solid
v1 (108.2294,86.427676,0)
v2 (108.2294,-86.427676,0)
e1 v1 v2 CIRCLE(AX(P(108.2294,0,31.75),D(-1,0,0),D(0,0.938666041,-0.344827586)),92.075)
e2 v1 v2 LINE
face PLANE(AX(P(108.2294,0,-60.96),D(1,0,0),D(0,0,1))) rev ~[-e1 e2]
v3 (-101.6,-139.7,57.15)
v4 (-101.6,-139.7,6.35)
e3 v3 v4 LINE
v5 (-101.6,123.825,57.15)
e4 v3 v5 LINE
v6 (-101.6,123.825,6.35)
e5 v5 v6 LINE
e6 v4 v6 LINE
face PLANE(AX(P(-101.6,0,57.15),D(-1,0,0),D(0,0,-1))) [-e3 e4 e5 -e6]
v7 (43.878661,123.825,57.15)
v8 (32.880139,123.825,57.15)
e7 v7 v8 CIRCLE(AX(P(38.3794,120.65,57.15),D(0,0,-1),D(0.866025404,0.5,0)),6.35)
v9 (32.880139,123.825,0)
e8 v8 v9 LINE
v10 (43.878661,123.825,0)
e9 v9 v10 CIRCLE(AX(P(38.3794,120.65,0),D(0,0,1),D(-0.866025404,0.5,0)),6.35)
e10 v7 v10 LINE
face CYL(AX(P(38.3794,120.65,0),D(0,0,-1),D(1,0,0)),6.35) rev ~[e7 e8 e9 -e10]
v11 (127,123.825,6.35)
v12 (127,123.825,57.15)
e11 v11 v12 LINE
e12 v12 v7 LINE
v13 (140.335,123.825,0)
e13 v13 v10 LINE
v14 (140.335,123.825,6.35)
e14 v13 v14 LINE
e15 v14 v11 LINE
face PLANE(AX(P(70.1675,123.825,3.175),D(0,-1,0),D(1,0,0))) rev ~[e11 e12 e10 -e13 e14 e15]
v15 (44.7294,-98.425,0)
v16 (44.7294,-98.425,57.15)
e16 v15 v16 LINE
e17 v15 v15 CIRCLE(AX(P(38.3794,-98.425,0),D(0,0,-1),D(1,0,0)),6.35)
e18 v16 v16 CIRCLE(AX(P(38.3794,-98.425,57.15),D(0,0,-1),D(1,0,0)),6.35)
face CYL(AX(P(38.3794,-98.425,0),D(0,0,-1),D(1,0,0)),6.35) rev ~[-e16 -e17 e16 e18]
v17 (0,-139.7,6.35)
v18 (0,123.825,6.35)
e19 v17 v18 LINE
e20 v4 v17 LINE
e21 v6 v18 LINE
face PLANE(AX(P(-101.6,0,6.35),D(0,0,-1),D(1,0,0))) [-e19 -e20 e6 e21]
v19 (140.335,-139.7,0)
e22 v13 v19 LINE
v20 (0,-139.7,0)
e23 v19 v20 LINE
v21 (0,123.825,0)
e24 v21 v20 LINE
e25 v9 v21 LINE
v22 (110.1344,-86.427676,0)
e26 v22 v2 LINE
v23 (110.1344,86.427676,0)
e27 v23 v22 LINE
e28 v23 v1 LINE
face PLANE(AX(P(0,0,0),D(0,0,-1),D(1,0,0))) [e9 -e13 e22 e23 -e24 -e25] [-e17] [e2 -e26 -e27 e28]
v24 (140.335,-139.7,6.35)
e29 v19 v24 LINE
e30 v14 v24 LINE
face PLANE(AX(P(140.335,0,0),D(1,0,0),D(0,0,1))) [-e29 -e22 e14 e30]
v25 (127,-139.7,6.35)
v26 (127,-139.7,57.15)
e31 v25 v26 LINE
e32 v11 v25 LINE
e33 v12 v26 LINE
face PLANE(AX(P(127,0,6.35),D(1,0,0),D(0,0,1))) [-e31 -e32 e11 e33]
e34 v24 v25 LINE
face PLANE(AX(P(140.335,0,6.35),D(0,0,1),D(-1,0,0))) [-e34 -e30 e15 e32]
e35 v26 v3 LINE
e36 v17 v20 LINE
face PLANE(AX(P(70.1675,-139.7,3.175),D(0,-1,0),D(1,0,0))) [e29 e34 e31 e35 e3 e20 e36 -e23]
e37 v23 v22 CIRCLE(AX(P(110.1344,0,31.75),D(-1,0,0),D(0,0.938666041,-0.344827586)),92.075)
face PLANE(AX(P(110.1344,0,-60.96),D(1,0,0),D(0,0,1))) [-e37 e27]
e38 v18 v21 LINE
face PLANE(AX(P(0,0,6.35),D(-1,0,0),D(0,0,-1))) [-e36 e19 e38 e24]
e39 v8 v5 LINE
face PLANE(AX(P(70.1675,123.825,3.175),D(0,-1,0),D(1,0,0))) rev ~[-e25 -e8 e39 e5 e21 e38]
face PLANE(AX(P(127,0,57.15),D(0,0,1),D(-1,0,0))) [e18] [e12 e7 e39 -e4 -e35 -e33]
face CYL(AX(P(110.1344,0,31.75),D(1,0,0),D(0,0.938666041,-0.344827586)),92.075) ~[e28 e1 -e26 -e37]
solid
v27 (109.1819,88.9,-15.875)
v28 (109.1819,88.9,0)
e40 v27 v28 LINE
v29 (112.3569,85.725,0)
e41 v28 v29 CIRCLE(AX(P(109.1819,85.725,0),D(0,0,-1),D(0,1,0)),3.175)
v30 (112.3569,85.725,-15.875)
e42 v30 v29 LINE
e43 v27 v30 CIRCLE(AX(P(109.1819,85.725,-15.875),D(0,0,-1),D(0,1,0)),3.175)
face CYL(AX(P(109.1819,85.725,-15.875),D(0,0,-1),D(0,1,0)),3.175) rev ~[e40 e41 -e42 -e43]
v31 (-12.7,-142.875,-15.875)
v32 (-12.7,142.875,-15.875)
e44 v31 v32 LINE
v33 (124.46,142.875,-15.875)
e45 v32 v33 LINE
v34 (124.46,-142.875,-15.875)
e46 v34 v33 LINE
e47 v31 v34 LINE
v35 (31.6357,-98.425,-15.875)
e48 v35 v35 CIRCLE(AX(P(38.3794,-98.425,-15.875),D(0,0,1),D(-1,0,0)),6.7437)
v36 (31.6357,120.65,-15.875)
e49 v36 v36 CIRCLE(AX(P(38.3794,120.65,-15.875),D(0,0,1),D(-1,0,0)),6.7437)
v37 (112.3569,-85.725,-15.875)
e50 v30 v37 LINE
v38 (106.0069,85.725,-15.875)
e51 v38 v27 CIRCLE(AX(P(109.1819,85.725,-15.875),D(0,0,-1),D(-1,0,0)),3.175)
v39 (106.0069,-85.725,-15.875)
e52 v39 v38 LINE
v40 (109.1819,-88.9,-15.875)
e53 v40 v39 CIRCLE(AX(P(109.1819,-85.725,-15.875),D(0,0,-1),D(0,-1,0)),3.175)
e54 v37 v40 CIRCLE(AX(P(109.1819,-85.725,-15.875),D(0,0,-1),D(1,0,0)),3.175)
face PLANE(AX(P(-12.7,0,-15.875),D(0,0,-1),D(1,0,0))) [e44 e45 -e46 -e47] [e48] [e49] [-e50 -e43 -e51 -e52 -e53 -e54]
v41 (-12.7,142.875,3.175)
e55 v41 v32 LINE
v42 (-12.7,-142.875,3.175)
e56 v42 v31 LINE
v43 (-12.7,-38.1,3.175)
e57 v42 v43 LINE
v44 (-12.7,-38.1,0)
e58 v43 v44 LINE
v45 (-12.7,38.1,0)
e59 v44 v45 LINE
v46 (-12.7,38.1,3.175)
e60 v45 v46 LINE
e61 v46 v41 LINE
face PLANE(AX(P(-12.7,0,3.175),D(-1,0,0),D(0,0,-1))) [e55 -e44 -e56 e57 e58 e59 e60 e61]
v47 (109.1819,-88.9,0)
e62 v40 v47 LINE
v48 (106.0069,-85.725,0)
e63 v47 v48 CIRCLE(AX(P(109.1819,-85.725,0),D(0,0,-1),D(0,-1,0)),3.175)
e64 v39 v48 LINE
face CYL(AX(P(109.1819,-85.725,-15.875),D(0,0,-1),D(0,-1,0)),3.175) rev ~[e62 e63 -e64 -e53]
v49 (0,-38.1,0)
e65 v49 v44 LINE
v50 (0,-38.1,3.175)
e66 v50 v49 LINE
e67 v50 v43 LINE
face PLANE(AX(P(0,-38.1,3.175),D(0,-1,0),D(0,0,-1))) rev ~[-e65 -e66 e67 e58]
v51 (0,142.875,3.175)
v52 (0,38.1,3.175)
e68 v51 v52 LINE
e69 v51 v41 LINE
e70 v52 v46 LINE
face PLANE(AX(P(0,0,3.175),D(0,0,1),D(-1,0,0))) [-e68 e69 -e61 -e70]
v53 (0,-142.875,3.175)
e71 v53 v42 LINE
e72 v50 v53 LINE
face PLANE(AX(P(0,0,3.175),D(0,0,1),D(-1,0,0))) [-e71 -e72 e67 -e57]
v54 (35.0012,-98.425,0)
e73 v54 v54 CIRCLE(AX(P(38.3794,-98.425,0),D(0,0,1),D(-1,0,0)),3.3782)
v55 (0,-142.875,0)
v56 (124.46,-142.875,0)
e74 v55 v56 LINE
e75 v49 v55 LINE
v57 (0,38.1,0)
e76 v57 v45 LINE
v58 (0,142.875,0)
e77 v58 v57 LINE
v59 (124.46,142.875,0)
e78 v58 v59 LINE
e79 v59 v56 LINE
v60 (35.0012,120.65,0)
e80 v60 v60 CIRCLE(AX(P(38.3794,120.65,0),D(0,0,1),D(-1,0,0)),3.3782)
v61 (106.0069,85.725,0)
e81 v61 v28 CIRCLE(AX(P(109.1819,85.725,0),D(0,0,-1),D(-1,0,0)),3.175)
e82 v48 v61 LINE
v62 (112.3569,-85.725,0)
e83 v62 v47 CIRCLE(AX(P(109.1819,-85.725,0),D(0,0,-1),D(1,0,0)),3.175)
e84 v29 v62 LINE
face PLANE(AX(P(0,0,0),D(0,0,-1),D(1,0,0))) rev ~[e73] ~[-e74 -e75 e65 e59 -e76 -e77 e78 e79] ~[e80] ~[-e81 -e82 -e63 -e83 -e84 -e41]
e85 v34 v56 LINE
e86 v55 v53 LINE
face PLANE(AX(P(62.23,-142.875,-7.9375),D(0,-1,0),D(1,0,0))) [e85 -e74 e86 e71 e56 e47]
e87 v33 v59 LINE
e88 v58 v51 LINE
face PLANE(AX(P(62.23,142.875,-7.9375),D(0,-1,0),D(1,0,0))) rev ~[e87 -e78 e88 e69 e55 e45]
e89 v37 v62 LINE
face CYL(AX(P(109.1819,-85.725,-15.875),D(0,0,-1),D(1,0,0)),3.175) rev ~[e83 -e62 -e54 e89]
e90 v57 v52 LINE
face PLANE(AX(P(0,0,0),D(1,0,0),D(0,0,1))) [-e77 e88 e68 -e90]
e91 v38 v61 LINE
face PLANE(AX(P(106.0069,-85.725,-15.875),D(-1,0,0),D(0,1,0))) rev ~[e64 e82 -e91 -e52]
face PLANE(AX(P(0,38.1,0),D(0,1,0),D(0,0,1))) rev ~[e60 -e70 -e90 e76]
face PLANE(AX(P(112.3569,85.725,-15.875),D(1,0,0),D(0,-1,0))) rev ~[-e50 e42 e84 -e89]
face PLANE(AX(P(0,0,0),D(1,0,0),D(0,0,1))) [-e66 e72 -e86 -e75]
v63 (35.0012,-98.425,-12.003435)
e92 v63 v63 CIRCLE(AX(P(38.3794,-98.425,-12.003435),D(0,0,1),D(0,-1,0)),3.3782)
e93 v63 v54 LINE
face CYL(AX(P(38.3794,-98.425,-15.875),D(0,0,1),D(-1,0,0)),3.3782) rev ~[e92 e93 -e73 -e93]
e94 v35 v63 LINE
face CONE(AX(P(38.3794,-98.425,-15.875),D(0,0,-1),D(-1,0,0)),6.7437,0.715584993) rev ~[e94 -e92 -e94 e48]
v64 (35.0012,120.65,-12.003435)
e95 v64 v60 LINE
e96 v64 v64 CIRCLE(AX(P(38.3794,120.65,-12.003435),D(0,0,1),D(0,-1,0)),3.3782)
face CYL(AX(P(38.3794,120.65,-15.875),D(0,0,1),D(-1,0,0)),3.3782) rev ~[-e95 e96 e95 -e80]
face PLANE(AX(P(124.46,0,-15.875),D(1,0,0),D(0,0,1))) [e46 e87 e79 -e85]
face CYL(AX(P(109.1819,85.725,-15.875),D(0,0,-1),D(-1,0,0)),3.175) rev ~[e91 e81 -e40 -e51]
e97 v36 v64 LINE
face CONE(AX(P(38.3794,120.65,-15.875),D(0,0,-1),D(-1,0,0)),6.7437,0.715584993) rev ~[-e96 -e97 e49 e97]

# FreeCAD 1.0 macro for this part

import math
import FreeCAD as App
import Part
import Sketcher

V = App.Vector
Q = App.Units.Quantity


def add_polygon(sketch, points):
    """Adds a closed chain of lines whose ends are joined by coincident constraints."""
    first, n = sketch.GeometryCount, len(points)
    for a, b in zip(points, points[1:] + points[:1]):
        sketch.addGeometry(Part.LineSegment(App.Vector(*a, 0), App.Vector(*b, 0)), False)
    for i in range(n):
        sketch.addConstraint(Sketcher.Constraint("Coincident", first + i, 2, first + (i + 1) % n, 1))

doc = App.newDocument("Part")
body = doc.addObject("PartDesign::Body", "Body")

# Sketch on XZ plane
sketch1 = doc.addObject("Sketcher::SketchObject", "Sketch")
body.addObject(sketch1)
sketch1.AttachmentSupport = (doc.XZ_Plane, [""])
sketch1.MapMode = "FlatFace"
add_polygon(sketch1, [(0, 6.3), (0, 0), (108.2, 0), (108.2, -61), (110.1, -61), (110.1, 0), (140.3, 0), (140.3, 6.3), (127, 6.3), (127, 57.1), (-101.6, 57.1), (-101.6, 6.3)])  # lines 0-11
sketch1.addConstraint(Sketcher.Constraint("Vertical", 0))
sketch1.addConstraint(Sketcher.Constraint("Horizontal", 1))
sketch1.addConstraint(Sketcher.Constraint("Vertical", 2))
sketch1.addConstraint(Sketcher.Constraint("Horizontal", 3))
sketch1.addConstraint(Sketcher.Constraint("Vertical", 4))
sketch1.addConstraint(Sketcher.Constraint("Horizontal", 5))
sketch1.addConstraint(Sketcher.Constraint("Vertical", 6))
sketch1.addConstraint(Sketcher.Constraint("Horizontal", 7))
sketch1.addConstraint(Sketcher.Constraint("Vertical", 8))
sketch1.addConstraint(Sketcher.Constraint("Horizontal", 9))
sketch1.addConstraint(Sketcher.Constraint("Vertical", 10))
sketch1.addConstraint(Sketcher.Constraint("Horizontal", 11))
sketch1.addConstraint(Sketcher.Constraint("Coincident", 0, 2, -1, 1))
sketch1.addConstraint(Sketcher.Constraint("PointOnObject", 4, 2, -1))
sketch1.addConstraint(Sketcher.Constraint("Horizontal", 7, 2, 10, 2))
sketch1.addConstraint(Sketcher.Constraint("DistanceX", 9, 2, 9, 1, Q("9 in")))
sketch1.addConstraint(Sketcher.Constraint("DistanceX", 11, 1, 11, 2, Q("4 in")))
sketch1.addConstraint(Sketcher.Constraint("DistanceY", 8, 1, 8, 2, Q("2 in")))
sketch1.addConstraint(Sketcher.Constraint("DistanceY", 2, 2, 2, 1, Q("2.4 in")))
sketch1.addConstraint(Sketcher.Constraint("DistanceY", 0, 2, 0, 1, Q("0.25 in")))
sketch1.addConstraint(Sketcher.Constraint("DistanceX", 1, 1, 1, 2, Q("4.261 in")))
sketch1.addConstraint(Sketcher.Constraint("DistanceX", 3, 1, 3, 2, Q("0.075 in")))
sketch1.addConstraint(Sketcher.Constraint("DistanceX", 5, 1, 5, 2, Q("1.189 in")))
pad1 = doc.addObject("PartDesign::Pad", "Pad")
body.addObject(pad1)
pad1.Profile = sketch1
pad1.Type = "TwoLengths"
pad1.Length = Q("5.5 in")
pad1.Length2 = Q("4.875 in")

# Sketch on YZ plane
sketch2 = doc.addObject("Sketcher::SketchObject", "Sketch001")
body.addObject(sketch2)
sketch2.AttachmentSupport = (doc.YZ_Plane, [""])
sketch2.MapMode = "FlatFace"
sketch2.AttachmentOffset = App.Placement(V(0, 0, 4.336 * 25.4), App.Rotation())
sketch2.addGeometry(Part.LineSegment(V(-86, 0, 0), V(-140, 0, 0)), False)
sketch2.addGeometry(Part.LineSegment(V(-140, 0, 0), V(-140, -89, 0)), False)
sketch2.addGeometry(Part.LineSegment(V(-140, -89, 0), V(152, -89, 0)), False)
sketch2.addGeometry(Part.LineSegment(V(152, -89, 0), V(152, 0, 0)), False)
sketch2.addGeometry(Part.LineSegment(V(152, 0, 0), V(86, 0, 0)), False)
sketch2.addGeometry(Part.ArcOfCircle(Part.Circle(V(0, 32, 0), V(0, 0, 1), 92), math.radians(-160), math.radians(-20)), False)
sketch2.addConstraint(Sketcher.Constraint("Coincident", 0, 2, 1, 1))
sketch2.addConstraint(Sketcher.Constraint("Coincident", 1, 2, 2, 1))
sketch2.addConstraint(Sketcher.Constraint("Coincident", 2, 2, 3, 1))
sketch2.addConstraint(Sketcher.Constraint("Coincident", 3, 2, 4, 1))
sketch2.addConstraint(Sketcher.Constraint("Coincident", 4, 2, 5, 2))
sketch2.addConstraint(Sketcher.Constraint("Coincident", 5, 1, 0, 1))
sketch2.addConstraint(Sketcher.Constraint("Horizontal", 0))
sketch2.addConstraint(Sketcher.Constraint("Vertical", 1))
sketch2.addConstraint(Sketcher.Constraint("Horizontal", 2))
sketch2.addConstraint(Sketcher.Constraint("Vertical", 3))
sketch2.addConstraint(Sketcher.Constraint("Horizontal", 4))
sketch2.addConstraint(Sketcher.Constraint("Symmetric", 4, 2, 5, 1, -1, 1))
sketch2.addConstraint(Sketcher.Constraint("PointOnObject", 5, 3, -2))
sketch2.addConstraint(Sketcher.Constraint("DistanceX", 2, 1, 2, 2, Q("11.5 in")))
sketch2.addConstraint(Sketcher.Constraint("DistanceY", 1, 2, 1, 1, Q("3.5 in")))
sketch2.addConstraint(Sketcher.Constraint("DistanceX", -1, 1, 2, 2, Q("6 in")))
sketch2.addConstraint(Sketcher.Constraint("Radius", 5, Q("3.625 in")))
sketch2.addConstraint(Sketcher.Constraint("DistanceY", -1, 1, 5, 3, Q("1.25 in")))
pocket1 = doc.addObject("PartDesign::Pocket", "Pocket")
body.addObject(pocket1)
pocket1.Profile = sketch2
pocket1.Type = "ThroughAll"

# Sketch on XY plane
sketch3 = doc.addObject("Sketcher::SketchObject", "Sketch002")
body.addObject(sketch3)
sketch3.AttachmentSupport = (doc.XY_Plane, [""])
sketch3.MapMode = "FlatFace"
sketch3.addGeometry(Part.Circle(V(38, 121, 0), V(0, 0, 1), 6), False)
sketch3.addGeometry(Part.Circle(V(38, -98, 0), V(0, 0, 1), 6), False)
sketch3.addConstraint(Sketcher.Constraint("Equal", 0, 1))
sketch3.addConstraint(Sketcher.Constraint("Vertical", 0, 3, 1, 3))
sketch3.addConstraint(Sketcher.Constraint("Diameter", 0, Q("0.5 in")))
sketch3.addConstraint(Sketcher.Constraint("DistanceY", -1, 1, 0, 3, Q("4.75 in")))
sketch3.addConstraint(Sketcher.Constraint("DistanceX", -1, 1, 0, 3, Q("1.511 in")))
sketch3.addConstraint(Sketcher.Constraint("DistanceY", 1, 3, -1, 1, Q("3.875 in")))
pocket2 = doc.addObject("PartDesign::Pocket", "Pocket001")
body.addObject(pocket2)
pocket2.Profile = sketch3
pocket2.Type = "ThroughAll"
pocket2.Reversed = True
body2 = doc.addObject("PartDesign::Body", "Body001")

# Sketch on XZ plane
sketch4 = doc.addObject("Sketcher::SketchObject", "Sketch003")
body2.addObject(sketch4)
sketch4.AttachmentSupport = (doc.getObject("XZ_Plane001"), [""])
sketch4.MapMode = "FlatFace"
add_polygon(sketch4, [(124.5, -15.9), (124.5, 0), (0, 0), (0, 3.2), (-12.7, 3.2), (-12.7, -15.9)])  # lines 0-5
sketch4.addConstraint(Sketcher.Constraint("Vertical", 0))
sketch4.addConstraint(Sketcher.Constraint("Horizontal", 1))
sketch4.addConstraint(Sketcher.Constraint("Vertical", 2))
sketch4.addConstraint(Sketcher.Constraint("Horizontal", 3))
sketch4.addConstraint(Sketcher.Constraint("Vertical", 4))
sketch4.addConstraint(Sketcher.Constraint("Horizontal", 5))
sketch4.addConstraint(Sketcher.Constraint("Coincident", 1, 2, -1, 1))
sketch4.addConstraint(Sketcher.Constraint("DistanceX", 1, 2, 1, 1, Q("4.9 in")))
sketch4.addConstraint(Sketcher.Constraint("DistanceX", 3, 2, 3, 1, Q("0.5 in")))
sketch4.addConstraint(Sketcher.Constraint("DistanceY", 4, 2, 4, 1, Q("0.75 in")))
sketch4.addConstraint(Sketcher.Constraint("DistanceY", 0, 1, 0, 2, Q("0.625 in")))
pad2 = doc.addObject("PartDesign::Pad", "Pad001")
body2.addObject(pad2)
pad2.Profile = sketch4
pad2.Type = "TwoLengths"
pad2.Length = Q("5.625 in")
pad2.Length2 = Q("5.625 in")

# Sketch on XY plane
sketch5 = doc.addObject("Sketcher::SketchObject", "Sketch004")
body2.addObject(sketch5)
sketch5.AttachmentSupport = (doc.getObject("XY_Plane001"), [""])
sketch5.MapMode = "FlatFace"
sketch5.AttachmentOffset = App.Placement(V(0, 0, -0.625 * 25.4), App.Rotation())
sketch5.addGeometry(Part.Circle(V(38.4, 120.7, 0), V(0, 0, 1), 3.4), False)
sketch5.addGeometry(Part.Circle(V(38.4, -98.4, 0), V(0, 0, 1), 3.4), False)
sketch5.addConstraint(Sketcher.Constraint("Equal", 0, 1))
sketch5.addConstraint(Sketcher.Constraint("Vertical", 0, 3, 1, 3))
sketch5.addConstraint(Sketcher.Constraint("Diameter", 0, Q("0.266 in")))
sketch5.addConstraint(Sketcher.Constraint("DistanceY", -1, 1, 0, 3, Q("4.75 in")))
sketch5.addConstraint(Sketcher.Constraint("DistanceX", -1, 1, 0, 3, Q("1.511 in")))
sketch5.addConstraint(Sketcher.Constraint("DistanceY", 1, 3, -1, 1, Q("3.875 in")))
doc.recompute()
hole = doc.addObject("PartDesign::Hole", "Hole")
body2.addObject(hole)
hole.Profile = sketch5
hole.ThreadType = "None"
hole.Diameter = Q("0.266 in")
hole.DepthType = "ThroughAll"
hole.HoleCutType = "Countersink"
hole.HoleCutDiameter = Q("0.531 in")
hole.HoleCutCountersinkAngle = 82
hole.Reversed = True

# Sketch on XY plane
sketch6 = doc.addObject("Sketcher::SketchObject", "Sketch005")
body2.addObject(sketch6)
sketch6.AttachmentSupport = (doc.getObject("XY_Plane001"), [""])
sketch6.MapMode = "FlatFace"
sketch6.AttachmentOffset = App.Placement(V(0, 0, -0.625 * 25.4), App.Rotation())
sketch6.addGeometry(Part.LineSegment(V(112.4, 85.7, 0), V(112.4, -85.7, 0)), False)
sketch6.addGeometry(Part.ArcOfCircle(Part.Circle(V(109.2, -85.7, 0), V(0, 0, 1), 3.2), math.radians(-90), math.radians(0)), False)
sketch6.addGeometry(Part.ArcOfCircle(Part.Circle(V(109.2, -85.7, 0), V(0, 0, 1), 3.2), math.radians(180), math.radians(270)), False)
sketch6.addGeometry(Part.LineSegment(V(106, -85.7, 0), V(106, 85.7, 0)), False)
sketch6.addGeometry(Part.ArcOfCircle(Part.Circle(V(109.2, 85.7, 0), V(0, 0, 1), 3.2), math.radians(90), math.radians(180)), False)
sketch6.addGeometry(Part.ArcOfCircle(Part.Circle(V(109.2, 85.7, 0), V(0, 0, 1), 3.2), math.radians(0), math.radians(90)), False)
sketch6.addConstraint(Sketcher.Constraint("Tangent", 0, 2, 1, 2))
sketch6.addConstraint(Sketcher.Constraint("Tangent", 1, 1, 2, 2))
sketch6.addConstraint(Sketcher.Constraint("Tangent", 2, 1, 3, 1))
sketch6.addConstraint(Sketcher.Constraint("Tangent", 3, 2, 4, 2))
sketch6.addConstraint(Sketcher.Constraint("Tangent", 4, 1, 5, 2))
sketch6.addConstraint(Sketcher.Constraint("Tangent", 5, 1, 0, 1))
sketch6.addConstraint(Sketcher.Constraint("Vertical", 0))
sketch6.addConstraint(Sketcher.Constraint("Vertical", 3))
sketch6.addConstraint(Sketcher.Constraint("Equal", 1, 2))
sketch6.addConstraint(Sketcher.Constraint("Equal", 2, 4))
sketch6.addConstraint(Sketcher.Constraint("Symmetric", 1, 1, 4, 1, -1))
sketch6.addConstraint(Sketcher.Constraint("Vertical", 5, 3, 1, 1))
sketch6.addConstraint(Sketcher.Constraint("Radius", 1, Q("0.125 in")))
sketch6.addConstraint(Sketcher.Constraint("DistanceY", 0, 2, 0, 1, Q("6.75 in")))
sketch6.addConstraint(Sketcher.Constraint("DistanceX", -1, 1, 1, 3, Q("4.2985 in")))
pocket3 = doc.addObject("PartDesign::Pocket", "Pocket002")
body2.addObject(pocket3)
pocket3.Profile = sketch6
pocket3.Type = "ThroughAll"
pocket3.Reversed = True

# Sketch on YZ plane
sketch7 = doc.addObject("Sketcher::SketchObject", "Sketch006")
body2.addObject(sketch7)
sketch7.AttachmentSupport = (doc.getObject("YZ_Plane001"), [""])
sketch7.MapMode = "FlatFace"
add_polygon(sketch7, [(-38.1, 0), (38.1, 0), (38.1, 3.2), (-38.1, 3.2)])  # lines 0-3
sketch7.addConstraint(Sketcher.Constraint("Horizontal", 0))
sketch7.addConstraint(Sketcher.Constraint("Vertical", 1))
sketch7.addConstraint(Sketcher.Constraint("Horizontal", 2))
sketch7.addConstraint(Sketcher.Constraint("Vertical", 3))
sketch7.addConstraint(Sketcher.Constraint("Symmetric", 0, 2, 3, 2, -1, 1))
sketch7.addConstraint(Sketcher.Constraint("DistanceX", 0, 1, 0, 2, Q("3 in")))
sketch7.addConstraint(Sketcher.Constraint("DistanceY", 1, 1, 1, 2, Q("0.125 in")))
pocket4 = doc.addObject("PartDesign::Pocket", "Pocket003")
body2.addObject(pocket4)
pocket4.Profile = sketch7
pocket4.Type = "ThroughAll"

doc.recompute()
